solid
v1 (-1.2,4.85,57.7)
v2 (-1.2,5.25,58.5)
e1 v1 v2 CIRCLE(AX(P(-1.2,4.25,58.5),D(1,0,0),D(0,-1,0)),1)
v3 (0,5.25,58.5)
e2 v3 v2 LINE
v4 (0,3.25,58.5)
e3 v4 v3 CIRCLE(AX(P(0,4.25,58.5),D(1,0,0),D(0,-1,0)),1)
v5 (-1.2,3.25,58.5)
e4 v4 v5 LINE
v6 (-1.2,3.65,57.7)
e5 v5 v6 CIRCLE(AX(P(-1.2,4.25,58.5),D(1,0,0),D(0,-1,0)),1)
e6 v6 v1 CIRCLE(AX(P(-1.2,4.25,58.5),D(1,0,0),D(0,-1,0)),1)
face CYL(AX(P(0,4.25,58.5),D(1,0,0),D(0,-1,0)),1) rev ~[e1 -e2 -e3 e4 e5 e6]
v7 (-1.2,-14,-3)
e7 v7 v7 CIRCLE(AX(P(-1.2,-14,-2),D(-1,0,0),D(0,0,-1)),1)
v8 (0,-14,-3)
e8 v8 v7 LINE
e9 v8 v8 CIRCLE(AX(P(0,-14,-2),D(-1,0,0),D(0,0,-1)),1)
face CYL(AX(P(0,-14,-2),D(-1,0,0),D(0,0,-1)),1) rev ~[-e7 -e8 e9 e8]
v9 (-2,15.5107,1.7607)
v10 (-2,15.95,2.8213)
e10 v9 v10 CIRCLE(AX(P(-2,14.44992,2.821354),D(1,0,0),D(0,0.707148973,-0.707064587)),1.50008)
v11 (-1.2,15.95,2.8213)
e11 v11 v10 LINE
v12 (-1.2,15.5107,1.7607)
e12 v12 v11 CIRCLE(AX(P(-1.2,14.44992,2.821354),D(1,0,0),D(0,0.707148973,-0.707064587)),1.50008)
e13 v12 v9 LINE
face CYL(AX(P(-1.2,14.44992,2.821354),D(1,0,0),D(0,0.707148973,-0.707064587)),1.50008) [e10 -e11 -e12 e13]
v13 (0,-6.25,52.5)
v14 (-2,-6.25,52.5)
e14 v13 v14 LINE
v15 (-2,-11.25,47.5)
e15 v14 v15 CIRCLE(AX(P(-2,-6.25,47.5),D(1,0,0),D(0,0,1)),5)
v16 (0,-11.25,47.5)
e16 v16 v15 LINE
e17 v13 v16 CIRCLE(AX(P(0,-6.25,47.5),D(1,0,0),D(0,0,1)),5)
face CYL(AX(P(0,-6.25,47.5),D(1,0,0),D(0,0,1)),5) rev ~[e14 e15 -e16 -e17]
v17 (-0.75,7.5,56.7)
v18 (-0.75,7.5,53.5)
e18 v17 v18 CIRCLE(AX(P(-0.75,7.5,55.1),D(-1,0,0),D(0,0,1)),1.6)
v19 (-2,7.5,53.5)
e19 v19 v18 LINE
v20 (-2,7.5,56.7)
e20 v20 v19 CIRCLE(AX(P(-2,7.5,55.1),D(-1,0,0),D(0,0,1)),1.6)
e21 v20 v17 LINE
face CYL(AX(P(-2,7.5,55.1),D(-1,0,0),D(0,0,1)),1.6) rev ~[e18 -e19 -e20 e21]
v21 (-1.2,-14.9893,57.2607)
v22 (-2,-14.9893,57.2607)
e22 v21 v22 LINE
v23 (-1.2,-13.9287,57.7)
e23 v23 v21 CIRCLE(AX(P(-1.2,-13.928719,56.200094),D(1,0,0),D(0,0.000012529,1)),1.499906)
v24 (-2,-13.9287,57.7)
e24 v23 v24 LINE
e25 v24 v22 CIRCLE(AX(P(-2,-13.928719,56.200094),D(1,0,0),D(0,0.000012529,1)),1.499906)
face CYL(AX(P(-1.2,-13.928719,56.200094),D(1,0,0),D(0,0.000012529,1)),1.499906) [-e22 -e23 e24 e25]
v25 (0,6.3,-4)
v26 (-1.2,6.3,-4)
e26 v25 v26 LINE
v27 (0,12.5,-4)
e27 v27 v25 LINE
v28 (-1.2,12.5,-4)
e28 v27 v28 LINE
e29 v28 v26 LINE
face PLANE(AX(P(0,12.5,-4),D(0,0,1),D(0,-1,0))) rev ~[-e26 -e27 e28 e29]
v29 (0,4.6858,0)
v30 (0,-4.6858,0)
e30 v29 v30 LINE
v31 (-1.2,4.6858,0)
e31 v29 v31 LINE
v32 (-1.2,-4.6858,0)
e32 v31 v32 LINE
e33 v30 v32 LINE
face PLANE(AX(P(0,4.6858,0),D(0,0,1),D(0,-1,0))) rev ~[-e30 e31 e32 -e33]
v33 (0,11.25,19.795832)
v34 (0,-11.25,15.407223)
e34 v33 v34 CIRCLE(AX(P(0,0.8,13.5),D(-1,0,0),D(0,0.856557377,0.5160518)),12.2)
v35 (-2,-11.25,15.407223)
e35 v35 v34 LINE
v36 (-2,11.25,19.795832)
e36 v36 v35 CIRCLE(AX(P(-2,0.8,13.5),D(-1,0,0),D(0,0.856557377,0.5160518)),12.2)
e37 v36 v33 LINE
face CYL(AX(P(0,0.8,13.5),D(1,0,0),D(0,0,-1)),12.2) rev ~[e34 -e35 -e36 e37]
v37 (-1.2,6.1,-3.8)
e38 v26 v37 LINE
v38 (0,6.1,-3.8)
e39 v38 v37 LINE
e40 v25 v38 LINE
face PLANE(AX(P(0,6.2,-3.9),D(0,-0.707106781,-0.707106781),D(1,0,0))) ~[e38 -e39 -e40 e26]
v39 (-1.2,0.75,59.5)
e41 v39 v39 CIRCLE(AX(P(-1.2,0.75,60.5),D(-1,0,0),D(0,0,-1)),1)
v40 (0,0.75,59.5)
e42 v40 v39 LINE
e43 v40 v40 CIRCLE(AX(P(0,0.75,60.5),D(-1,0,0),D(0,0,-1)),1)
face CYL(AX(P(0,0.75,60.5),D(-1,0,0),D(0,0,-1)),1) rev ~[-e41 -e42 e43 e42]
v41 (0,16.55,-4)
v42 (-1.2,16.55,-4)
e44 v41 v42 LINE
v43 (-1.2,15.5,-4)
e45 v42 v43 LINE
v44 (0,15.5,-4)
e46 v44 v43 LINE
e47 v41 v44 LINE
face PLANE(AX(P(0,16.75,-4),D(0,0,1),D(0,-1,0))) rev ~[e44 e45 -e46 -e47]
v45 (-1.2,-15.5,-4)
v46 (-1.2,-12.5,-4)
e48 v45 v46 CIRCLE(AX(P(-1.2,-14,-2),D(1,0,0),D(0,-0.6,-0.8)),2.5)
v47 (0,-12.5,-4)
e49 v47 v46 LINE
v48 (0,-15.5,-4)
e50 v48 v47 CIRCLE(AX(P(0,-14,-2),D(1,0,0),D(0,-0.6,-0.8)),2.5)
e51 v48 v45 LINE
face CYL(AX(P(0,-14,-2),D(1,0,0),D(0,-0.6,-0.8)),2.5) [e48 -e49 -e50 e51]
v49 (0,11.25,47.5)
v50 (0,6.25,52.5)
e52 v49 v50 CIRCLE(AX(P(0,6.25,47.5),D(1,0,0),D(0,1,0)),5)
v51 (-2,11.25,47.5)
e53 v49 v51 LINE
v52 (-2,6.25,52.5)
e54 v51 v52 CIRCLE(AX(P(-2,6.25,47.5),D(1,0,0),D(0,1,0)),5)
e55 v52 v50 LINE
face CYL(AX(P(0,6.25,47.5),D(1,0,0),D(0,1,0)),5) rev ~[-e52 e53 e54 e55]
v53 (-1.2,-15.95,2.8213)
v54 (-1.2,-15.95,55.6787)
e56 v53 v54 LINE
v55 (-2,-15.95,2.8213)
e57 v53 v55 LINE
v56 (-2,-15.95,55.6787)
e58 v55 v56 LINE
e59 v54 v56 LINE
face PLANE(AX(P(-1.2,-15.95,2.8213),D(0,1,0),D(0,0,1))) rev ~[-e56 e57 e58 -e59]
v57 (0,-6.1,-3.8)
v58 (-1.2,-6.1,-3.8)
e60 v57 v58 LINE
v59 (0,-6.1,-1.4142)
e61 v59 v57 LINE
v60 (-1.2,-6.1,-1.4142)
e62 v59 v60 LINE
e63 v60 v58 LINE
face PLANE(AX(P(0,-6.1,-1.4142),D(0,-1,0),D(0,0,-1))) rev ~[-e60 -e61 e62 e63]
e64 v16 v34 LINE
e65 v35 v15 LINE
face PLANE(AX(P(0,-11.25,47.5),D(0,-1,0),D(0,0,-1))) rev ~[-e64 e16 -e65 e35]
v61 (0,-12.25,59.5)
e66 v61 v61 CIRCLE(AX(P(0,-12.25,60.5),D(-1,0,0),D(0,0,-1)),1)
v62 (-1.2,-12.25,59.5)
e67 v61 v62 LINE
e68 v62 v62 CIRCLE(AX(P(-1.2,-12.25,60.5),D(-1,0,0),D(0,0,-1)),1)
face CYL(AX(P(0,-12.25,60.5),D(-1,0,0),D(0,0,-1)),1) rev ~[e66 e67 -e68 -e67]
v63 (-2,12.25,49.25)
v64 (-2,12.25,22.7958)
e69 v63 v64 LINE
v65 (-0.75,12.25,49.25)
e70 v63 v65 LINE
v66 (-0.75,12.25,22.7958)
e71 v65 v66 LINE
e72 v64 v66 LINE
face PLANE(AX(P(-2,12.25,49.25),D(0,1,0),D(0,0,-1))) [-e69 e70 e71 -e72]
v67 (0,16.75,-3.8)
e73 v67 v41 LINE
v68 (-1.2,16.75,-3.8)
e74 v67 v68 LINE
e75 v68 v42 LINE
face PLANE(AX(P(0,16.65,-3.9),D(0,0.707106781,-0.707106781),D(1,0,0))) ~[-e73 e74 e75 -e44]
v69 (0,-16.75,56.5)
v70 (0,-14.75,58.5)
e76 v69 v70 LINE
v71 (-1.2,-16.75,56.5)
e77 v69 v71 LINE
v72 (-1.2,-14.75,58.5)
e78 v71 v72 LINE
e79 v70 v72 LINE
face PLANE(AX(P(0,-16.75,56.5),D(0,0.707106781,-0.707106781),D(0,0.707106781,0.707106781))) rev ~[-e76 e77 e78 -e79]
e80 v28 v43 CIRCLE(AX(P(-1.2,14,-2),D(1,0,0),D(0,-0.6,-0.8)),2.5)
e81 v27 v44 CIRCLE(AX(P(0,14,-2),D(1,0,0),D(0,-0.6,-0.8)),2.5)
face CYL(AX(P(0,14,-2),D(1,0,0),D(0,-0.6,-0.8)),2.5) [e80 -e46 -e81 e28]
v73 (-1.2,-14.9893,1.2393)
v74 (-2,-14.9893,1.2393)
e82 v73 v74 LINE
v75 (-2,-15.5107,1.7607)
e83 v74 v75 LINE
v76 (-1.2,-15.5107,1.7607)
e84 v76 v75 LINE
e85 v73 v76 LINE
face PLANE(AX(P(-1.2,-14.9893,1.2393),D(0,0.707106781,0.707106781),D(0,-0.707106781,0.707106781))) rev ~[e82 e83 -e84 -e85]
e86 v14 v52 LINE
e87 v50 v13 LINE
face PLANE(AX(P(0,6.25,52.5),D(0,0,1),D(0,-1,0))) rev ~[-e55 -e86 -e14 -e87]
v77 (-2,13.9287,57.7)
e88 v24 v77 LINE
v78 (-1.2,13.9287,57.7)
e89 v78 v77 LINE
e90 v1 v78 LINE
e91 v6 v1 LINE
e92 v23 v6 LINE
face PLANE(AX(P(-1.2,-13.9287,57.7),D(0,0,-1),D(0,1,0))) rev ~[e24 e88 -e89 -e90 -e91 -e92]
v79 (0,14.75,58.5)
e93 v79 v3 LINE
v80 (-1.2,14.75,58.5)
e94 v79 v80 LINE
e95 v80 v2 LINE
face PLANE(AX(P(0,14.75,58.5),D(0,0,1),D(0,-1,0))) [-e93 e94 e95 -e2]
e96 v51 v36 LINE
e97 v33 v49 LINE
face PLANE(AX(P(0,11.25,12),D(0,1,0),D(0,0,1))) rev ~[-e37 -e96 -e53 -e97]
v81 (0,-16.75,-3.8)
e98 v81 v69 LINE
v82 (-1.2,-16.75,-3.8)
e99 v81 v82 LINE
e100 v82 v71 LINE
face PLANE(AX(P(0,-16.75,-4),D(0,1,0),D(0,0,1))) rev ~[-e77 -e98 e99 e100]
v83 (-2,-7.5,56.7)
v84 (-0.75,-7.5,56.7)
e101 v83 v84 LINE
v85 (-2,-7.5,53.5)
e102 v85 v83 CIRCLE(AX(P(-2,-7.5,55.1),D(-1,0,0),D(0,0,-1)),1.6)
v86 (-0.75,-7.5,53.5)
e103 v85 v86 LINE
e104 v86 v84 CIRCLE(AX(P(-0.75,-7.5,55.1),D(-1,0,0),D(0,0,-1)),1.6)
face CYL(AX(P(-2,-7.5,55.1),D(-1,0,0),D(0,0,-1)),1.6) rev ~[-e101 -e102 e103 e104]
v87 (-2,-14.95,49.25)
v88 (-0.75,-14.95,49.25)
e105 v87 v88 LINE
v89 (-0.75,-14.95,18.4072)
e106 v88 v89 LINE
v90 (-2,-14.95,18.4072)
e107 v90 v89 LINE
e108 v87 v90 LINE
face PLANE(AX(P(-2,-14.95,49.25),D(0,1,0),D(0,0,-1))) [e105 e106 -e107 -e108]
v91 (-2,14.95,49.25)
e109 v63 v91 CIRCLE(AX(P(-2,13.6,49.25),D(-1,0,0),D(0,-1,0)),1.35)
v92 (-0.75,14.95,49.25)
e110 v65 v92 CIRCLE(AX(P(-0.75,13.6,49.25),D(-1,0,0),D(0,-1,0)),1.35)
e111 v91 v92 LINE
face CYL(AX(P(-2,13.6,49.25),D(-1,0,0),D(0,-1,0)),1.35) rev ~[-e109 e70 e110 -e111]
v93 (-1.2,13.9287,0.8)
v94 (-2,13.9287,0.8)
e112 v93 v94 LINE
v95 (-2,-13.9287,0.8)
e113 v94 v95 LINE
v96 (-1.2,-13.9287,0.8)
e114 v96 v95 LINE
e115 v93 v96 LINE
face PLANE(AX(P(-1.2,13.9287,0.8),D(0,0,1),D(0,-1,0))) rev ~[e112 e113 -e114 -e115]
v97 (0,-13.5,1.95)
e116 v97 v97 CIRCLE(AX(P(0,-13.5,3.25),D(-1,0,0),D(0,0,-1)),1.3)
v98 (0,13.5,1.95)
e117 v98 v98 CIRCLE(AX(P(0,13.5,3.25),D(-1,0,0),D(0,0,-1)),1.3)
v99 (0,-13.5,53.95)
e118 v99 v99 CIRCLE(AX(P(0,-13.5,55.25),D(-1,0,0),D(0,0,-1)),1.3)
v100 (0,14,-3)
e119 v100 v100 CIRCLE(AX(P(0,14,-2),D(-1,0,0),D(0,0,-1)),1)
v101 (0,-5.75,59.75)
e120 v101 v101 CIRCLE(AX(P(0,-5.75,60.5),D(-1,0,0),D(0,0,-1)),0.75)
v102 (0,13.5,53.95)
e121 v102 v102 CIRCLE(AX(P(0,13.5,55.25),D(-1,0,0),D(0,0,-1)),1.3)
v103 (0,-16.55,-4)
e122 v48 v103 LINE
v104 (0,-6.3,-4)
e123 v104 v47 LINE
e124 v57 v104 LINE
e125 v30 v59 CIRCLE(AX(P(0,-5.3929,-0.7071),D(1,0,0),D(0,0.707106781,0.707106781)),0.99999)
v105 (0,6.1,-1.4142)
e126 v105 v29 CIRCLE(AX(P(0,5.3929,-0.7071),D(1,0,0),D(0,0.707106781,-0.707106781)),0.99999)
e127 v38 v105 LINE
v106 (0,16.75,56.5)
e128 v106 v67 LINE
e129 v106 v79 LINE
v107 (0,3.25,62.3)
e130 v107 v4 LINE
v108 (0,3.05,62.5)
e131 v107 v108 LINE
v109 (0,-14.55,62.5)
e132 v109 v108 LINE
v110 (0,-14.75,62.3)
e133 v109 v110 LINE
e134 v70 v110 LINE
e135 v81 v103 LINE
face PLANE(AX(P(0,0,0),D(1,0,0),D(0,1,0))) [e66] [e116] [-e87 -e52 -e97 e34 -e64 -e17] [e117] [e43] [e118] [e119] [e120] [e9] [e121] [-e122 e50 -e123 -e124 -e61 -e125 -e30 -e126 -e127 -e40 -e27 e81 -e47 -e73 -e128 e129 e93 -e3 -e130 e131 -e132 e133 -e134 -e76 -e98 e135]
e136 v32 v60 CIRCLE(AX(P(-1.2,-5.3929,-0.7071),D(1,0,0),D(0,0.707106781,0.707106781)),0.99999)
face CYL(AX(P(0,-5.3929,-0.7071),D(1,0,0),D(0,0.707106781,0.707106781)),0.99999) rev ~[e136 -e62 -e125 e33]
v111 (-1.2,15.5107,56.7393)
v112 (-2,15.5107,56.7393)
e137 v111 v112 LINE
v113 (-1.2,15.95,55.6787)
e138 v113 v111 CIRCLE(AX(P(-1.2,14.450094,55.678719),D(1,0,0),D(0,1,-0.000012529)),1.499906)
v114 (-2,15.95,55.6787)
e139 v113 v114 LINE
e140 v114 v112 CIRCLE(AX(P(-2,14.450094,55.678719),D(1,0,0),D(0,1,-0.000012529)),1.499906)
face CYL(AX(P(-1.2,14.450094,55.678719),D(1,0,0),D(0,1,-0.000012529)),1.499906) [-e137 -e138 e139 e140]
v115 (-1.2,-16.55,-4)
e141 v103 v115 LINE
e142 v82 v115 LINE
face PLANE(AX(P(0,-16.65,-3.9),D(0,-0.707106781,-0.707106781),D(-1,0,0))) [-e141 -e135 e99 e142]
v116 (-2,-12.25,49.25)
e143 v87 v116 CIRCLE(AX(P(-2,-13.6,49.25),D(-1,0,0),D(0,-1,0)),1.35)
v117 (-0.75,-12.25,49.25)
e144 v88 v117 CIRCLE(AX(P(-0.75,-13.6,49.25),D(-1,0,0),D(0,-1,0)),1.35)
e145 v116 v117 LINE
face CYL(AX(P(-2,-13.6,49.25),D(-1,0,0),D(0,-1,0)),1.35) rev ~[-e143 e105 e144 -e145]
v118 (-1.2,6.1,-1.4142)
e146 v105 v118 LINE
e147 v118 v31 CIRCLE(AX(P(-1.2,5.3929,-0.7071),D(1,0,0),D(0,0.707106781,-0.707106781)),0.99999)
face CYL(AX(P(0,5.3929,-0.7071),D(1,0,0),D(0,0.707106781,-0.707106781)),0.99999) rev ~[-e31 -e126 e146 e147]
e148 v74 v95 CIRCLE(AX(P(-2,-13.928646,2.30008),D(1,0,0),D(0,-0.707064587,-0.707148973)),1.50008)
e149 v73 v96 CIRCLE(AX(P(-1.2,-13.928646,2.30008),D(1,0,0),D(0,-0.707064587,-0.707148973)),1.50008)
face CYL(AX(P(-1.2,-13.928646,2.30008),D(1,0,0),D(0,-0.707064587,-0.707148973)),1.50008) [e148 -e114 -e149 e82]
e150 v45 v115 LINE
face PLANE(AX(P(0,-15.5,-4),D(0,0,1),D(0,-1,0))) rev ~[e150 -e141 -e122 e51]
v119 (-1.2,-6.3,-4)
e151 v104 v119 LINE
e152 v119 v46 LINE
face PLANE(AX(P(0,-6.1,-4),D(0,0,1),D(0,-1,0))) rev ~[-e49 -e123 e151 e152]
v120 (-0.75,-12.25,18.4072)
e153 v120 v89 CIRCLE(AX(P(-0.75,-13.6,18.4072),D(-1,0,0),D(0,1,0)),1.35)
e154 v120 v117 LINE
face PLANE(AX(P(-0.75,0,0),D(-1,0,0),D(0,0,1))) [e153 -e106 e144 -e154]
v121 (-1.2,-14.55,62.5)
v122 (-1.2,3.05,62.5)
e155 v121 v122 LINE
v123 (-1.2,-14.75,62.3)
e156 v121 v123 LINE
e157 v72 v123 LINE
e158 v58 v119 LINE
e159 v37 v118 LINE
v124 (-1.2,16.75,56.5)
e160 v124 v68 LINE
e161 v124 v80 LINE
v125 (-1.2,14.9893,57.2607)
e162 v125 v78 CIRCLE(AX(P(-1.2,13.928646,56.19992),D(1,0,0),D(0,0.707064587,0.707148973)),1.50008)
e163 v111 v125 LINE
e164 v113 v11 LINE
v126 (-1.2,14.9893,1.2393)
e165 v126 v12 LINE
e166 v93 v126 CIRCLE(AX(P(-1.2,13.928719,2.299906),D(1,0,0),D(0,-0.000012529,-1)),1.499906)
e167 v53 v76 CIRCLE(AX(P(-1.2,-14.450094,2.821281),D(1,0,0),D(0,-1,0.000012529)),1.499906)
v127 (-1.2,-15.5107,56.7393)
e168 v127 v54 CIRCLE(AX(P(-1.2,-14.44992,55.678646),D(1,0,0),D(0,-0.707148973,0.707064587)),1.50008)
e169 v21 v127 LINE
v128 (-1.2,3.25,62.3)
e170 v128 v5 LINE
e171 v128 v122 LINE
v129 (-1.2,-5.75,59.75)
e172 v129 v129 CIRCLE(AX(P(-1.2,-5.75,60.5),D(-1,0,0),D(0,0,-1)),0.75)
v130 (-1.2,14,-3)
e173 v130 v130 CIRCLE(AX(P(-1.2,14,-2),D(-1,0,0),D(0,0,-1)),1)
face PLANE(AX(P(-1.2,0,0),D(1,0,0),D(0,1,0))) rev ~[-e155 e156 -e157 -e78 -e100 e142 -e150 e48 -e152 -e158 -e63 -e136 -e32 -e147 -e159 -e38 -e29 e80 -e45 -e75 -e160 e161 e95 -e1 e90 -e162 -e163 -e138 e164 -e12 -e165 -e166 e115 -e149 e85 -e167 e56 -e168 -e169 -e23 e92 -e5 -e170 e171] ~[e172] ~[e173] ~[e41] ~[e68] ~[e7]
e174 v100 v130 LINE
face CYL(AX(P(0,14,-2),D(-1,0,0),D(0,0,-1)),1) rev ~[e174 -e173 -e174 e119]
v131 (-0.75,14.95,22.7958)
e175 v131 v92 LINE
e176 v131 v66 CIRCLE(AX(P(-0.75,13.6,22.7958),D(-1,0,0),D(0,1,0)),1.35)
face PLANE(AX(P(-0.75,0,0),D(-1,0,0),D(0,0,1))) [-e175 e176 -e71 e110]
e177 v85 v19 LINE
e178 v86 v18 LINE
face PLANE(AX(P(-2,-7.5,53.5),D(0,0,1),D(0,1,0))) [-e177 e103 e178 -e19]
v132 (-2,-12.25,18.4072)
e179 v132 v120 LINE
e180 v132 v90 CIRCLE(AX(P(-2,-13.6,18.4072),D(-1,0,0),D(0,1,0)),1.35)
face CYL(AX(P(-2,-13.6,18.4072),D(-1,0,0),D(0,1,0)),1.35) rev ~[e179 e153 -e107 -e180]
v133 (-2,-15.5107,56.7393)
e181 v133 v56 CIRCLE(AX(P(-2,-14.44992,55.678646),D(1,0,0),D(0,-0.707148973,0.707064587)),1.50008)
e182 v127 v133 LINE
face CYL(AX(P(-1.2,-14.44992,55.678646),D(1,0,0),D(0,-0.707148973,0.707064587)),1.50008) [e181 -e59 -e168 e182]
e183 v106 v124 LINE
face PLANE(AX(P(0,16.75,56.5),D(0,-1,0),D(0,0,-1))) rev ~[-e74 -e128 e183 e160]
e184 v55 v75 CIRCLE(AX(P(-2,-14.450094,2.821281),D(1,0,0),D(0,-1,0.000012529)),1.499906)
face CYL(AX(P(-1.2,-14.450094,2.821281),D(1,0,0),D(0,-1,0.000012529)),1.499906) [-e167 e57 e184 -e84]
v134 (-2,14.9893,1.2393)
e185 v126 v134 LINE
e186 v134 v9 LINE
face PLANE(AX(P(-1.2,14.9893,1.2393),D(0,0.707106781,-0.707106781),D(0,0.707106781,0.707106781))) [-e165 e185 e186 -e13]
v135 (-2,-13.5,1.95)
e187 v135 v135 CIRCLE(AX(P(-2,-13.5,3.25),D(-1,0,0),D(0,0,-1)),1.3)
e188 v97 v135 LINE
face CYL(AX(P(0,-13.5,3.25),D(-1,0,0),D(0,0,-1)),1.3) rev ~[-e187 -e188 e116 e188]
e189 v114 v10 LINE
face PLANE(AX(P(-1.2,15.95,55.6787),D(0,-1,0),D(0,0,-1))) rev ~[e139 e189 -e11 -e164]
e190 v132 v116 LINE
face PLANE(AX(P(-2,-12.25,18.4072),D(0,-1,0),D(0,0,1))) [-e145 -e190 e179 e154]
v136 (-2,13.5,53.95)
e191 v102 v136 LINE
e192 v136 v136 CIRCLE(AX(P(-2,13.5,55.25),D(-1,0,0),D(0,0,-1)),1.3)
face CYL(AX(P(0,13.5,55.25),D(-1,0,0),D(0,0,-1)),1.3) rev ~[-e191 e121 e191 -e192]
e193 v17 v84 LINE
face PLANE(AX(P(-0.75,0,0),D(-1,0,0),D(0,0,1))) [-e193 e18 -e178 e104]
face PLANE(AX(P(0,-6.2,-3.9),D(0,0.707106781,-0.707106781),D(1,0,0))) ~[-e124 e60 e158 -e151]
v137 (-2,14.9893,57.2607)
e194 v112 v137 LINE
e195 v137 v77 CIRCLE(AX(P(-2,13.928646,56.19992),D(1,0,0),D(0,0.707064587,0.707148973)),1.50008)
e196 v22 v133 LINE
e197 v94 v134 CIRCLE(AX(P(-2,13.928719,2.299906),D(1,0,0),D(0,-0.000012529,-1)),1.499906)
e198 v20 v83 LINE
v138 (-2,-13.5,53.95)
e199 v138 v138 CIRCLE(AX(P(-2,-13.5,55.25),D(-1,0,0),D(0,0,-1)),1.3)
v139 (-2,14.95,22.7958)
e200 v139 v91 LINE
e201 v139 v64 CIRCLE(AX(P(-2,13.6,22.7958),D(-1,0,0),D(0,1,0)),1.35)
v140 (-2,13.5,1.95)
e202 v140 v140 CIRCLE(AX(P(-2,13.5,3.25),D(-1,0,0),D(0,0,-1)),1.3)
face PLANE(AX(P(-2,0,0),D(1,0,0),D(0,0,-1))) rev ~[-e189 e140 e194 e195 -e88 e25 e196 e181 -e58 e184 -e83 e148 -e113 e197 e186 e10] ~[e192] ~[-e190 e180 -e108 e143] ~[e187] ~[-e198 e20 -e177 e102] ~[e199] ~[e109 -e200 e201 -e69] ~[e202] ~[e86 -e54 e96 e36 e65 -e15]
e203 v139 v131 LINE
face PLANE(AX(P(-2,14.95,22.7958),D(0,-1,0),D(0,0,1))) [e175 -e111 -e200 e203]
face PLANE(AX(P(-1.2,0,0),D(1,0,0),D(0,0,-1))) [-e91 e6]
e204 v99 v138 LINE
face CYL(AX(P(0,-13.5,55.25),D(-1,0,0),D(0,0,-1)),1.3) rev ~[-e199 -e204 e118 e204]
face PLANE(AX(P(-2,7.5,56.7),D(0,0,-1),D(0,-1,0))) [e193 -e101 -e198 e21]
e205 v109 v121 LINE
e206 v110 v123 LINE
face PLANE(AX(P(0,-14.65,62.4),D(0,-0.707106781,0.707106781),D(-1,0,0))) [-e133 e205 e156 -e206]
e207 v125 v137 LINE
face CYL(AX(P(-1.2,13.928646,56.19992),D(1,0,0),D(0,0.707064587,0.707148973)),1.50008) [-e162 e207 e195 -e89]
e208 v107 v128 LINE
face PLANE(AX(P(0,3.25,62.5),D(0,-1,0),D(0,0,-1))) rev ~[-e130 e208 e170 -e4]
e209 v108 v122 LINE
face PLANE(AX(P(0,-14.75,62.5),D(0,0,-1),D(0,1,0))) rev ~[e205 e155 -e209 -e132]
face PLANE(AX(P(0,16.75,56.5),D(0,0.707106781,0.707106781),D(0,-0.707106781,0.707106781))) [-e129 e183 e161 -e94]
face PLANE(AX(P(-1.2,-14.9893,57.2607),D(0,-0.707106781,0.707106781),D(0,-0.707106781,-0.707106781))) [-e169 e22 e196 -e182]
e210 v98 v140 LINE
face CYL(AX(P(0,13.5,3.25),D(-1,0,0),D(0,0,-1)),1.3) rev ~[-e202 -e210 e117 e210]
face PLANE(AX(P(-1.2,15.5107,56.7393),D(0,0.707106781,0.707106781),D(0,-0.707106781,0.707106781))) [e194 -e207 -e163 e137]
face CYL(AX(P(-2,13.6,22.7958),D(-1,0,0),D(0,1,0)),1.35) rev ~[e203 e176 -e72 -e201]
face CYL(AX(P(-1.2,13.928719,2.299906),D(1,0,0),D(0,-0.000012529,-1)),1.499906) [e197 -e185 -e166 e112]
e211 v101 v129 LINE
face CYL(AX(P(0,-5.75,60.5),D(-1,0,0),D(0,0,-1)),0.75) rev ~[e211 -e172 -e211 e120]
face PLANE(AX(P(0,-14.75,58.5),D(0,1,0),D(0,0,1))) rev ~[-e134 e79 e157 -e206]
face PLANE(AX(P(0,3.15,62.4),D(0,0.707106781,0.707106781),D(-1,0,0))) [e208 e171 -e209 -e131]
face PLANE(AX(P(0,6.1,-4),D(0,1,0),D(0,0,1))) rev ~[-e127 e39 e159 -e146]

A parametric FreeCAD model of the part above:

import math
import FreeCAD as App
import Part
import Sketcher
from FreeCAD import Vector
Q = App.Units.Quantity


def edges_at(feature, points):
    """Names of the edges that pass closest to the given points."""
    edges = feature.Shape.Edges
    near = lambda p: min(range(len(edges)), key=lambda i: edges[i].distToShape(Part.Vertex(*p))[0])
    return sorted({f"Edge{near(p) + 1}" for p in points})

doc = App.newDocument("Part")
params = doc.addObject("Spreadsheet::Sheet", "Params")
for row, (alias, value) in enumerate([
    ("sketch1_radius", "1 mm"),
    ("sketch1_radius2", "5 mm"),
    ("sketch1_radius3", "2.5 mm"),
    ("sketch1_width", "18 mm"),
    ("sketch1_height", "4 mm"),
    ("pad1_length", "1.2 mm"),
    ("sketch2_radius", "1.5 mm"),
    ("sketch2_radius2", "5 mm"),
    ("sketch2_width", "12.5 mm"),
    ("sketch2_height", "35.5 mm"),
    ("pad2_length", "0.8 mm"),
    ("sketch3_diameter", "2.6 mm"),
    ("hole_diameter", "2.6 mm"),
    ("sketch4_diameter", "2 mm"),
    ("hole2_diameter", "2 mm"),
    ("sketch5_diameter", "24.4 mm"),
    ("pocket1_length", "10 mm"),
    ("sketch6_diameter", "1.5 mm"),
    ("hole3_diameter", "1.5 mm"),
    ("sketch7_radius", "1.6 mm"),
    ("sketch7_radius2", "1.35 mm"),
    ("sketch7_width", "15 mm"),
    ("pocket2_length", "1.25 mm"),
    ("chamfer_size", "0.2 mm"),
], start=1):
    params.set(f"A{row}", alias)
    params.set(f"B{row}", "=" + value)
    params.setAlias(f"B{row}", alias)

body = doc.addObject("PartDesign::Body", "Body")

# Sketch on YZ plane
sketch1 = body.newObject("Sketcher::SketchObject", "Sketch")
sketch1.AttachmentSupport = (doc.getObject("YZ_Plane"), [""])
sketch1.MapMode = "FlatFace"
sketch1.addGeometry(Part.LineSegment(Vector(16.8, -4, 0), Vector(16.8, 56.5, 0)), False)
sketch1.addGeometry(Part.LineSegment(Vector(16.8, 56.5, 0), Vector(14.8, 58.5, 0)), False)
sketch1.addGeometry(Part.LineSegment(Vector(14.8, 58.5, 0), Vector(5.2, 58.5, 0)), False)
sketch1.addGeometry(Part.ArcOfCircle(Part.Circle(Vector(4.2, 58.5, 0), Vector(0, 0, 1), 1), math.radians(180), math.radians(360)), False)
sketch1.addGeometry(Part.LineSegment(Vector(3.2, 58.5, 0), Vector(3.2, 62.5, 0)), False)
sketch1.addGeometry(Part.LineSegment(Vector(3.2, 62.5, 0), Vector(-14.8, 62.5, 0)), False)
sketch1.addGeometry(Part.LineSegment(Vector(-14.8, 62.5, 0), Vector(-14.8, 58.5, 0)), False)
sketch1.addGeometry(Part.LineSegment(Vector(-14.8, 58.5, 0), Vector(-16.8, 56.5, 0)), False)
sketch1.addGeometry(Part.LineSegment(Vector(-16.8, 56.5, 0), Vector(-16.8, -4, 0)), False)
sketch1.addGeometry(Part.LineSegment(Vector(-16.8, -4, 0), Vector(-15.5, -4, 0)), False)
sketch1.addGeometry(Part.ArcOfCircle(Part.Circle(Vector(-14, -2, 0), Vector(0, 0, 1), 2.5), math.radians(-127), math.radians(-53)), False)
sketch1.addGeometry(Part.LineSegment(Vector(-12.5, -4, 0), Vector(-6.1, -4, 0)), False)
sketch1.addGeometry(Part.LineSegment(Vector(-6.1, -4, 0), Vector(-6.1, -1.4, 0)), False)
sketch1.addGeometry(Part.ArcOfCircle(Part.Circle(Vector(-5.4, -0.7, 0), Vector(0, 0, 1), 1), math.radians(45), math.radians(225)), False)
sketch1.addGeometry(Part.LineSegment(Vector(-4.7, 0, 0), Vector(4.7, 0, 0)), False)
sketch1.addGeometry(Part.ArcOfCircle(Part.Circle(Vector(5.4, -0.7, 0), Vector(0, 0, 1), 1), math.radians(-45), math.radians(135)), False)
sketch1.addGeometry(Part.LineSegment(Vector(6.1, -1.4, 0), Vector(6.1, -4, 0)), False)
sketch1.addGeometry(Part.LineSegment(Vector(6.1, -4, 0), Vector(12.5, -4, 0)), False)
sketch1.addGeometry(Part.ArcOfCircle(Part.Circle(Vector(14, -2, 0), Vector(0, 0, 1), 2.5), math.radians(-127), math.radians(-53)), False)
sketch1.addGeometry(Part.LineSegment(Vector(15.5, -4, 0), Vector(16.8, -4, 0)), False)
sketch1.addGeometry(Part.LineSegment(Vector(-6.2, 52.5, 0), Vector(6.2, 52.5, 0)), False)
sketch1.addGeometry(Part.ArcOfCircle(Part.Circle(Vector(6.2, 47.5, 0), Vector(0, 0, 1), 5), math.radians(0), math.radians(90)), False)
sketch1.addGeometry(Part.LineSegment(Vector(11.2, 47.5, 0), Vector(11.2, 12, 0)), False)
sketch1.addGeometry(Part.LineSegment(Vector(11.2, 12, 0), Vector(-11.2, 12, 0)), False)
sketch1.addGeometry(Part.LineSegment(Vector(-11.2, 12, 0), Vector(-11.2, 47.5, 0)), False)
sketch1.addGeometry(Part.ArcOfCircle(Part.Circle(Vector(-6.2, 47.5, 0), Vector(0, 0, 1), 5), math.radians(90), math.radians(180)), False)
sketch1.addConstraint(Sketcher.Constraint("Coincident", 0, 2, 1, 1))
sketch1.addConstraint(Sketcher.Constraint("Coincident", 1, 2, 2, 1))
sketch1.addConstraint(Sketcher.Constraint("Coincident", 2, 2, 3, 2))
sketch1.addConstraint(Sketcher.Constraint("Tangent", 3, 1, 4, 1))
sketch1.addConstraint(Sketcher.Constraint("Coincident", 4, 2, 5, 1))
sketch1.addConstraint(Sketcher.Constraint("Coincident", 5, 2, 6, 1))
sketch1.addConstraint(Sketcher.Constraint("Coincident", 6, 2, 7, 1))
sketch1.addConstraint(Sketcher.Constraint("Coincident", 7, 2, 8, 1))
sketch1.addConstraint(Sketcher.Constraint("Coincident", 8, 2, 9, 1))
sketch1.addConstraint(Sketcher.Constraint("Coincident", 9, 2, 10, 1))
sketch1.addConstraint(Sketcher.Constraint("Coincident", 10, 2, 11, 1))
sketch1.addConstraint(Sketcher.Constraint("Coincident", 11, 2, 12, 1))
sketch1.addConstraint(Sketcher.Constraint("Coincident", 12, 2, 13, 2))
sketch1.addConstraint(Sketcher.Constraint("Coincident", 13, 1, 14, 1))
sketch1.addConstraint(Sketcher.Constraint("Coincident", 14, 2, 15, 2))
sketch1.addConstraint(Sketcher.Constraint("Coincident", 15, 1, 16, 1))
sketch1.addConstraint(Sketcher.Constraint("Coincident", 16, 2, 17, 1))
sketch1.addConstraint(Sketcher.Constraint("Coincident", 17, 2, 18, 1))
sketch1.addConstraint(Sketcher.Constraint("Coincident", 18, 2, 19, 1))
sketch1.addConstraint(Sketcher.Constraint("Coincident", 19, 2, 0, 1))
sketch1.addConstraint(Sketcher.Constraint("Tangent", 20, 2, 21, 2))
sketch1.addConstraint(Sketcher.Constraint("Tangent", 21, 1, 22, 1))
sketch1.addConstraint(Sketcher.Constraint("Coincident", 22, 2, 23, 1))
sketch1.addConstraint(Sketcher.Constraint("Coincident", 23, 2, 24, 1))
sketch1.addConstraint(Sketcher.Constraint("Tangent", 24, 2, 25, 2))
sketch1.addConstraint(Sketcher.Constraint("Tangent", 25, 1, 20, 1))
sketch1.addConstraint(Sketcher.Constraint("Vertical", 0))
sketch1.addConstraint(Sketcher.Constraint("Horizontal", 2))
sketch1.addConstraint(Sketcher.Constraint("Vertical", 4))
sketch1.addConstraint(Sketcher.Constraint("Horizontal", 5))
sketch1.addConstraint(Sketcher.Constraint("Vertical", 6))
sketch1.addConstraint(Sketcher.Constraint("Vertical", 8))
sketch1.addConstraint(Sketcher.Constraint("Horizontal", 9))
sketch1.addConstraint(Sketcher.Constraint("Horizontal", 11))
sketch1.addConstraint(Sketcher.Constraint("Vertical", 12))
sketch1.addConstraint(Sketcher.Constraint("Horizontal", 14))
sketch1.addConstraint(Sketcher.Constraint("Vertical", 16))
sketch1.addConstraint(Sketcher.Constraint("Horizontal", 17))
sketch1.addConstraint(Sketcher.Constraint("Horizontal", 19))
sketch1.addConstraint(Sketcher.Constraint("Horizontal", 20))
sketch1.addConstraint(Sketcher.Constraint("Vertical", 22))
sketch1.addConstraint(Sketcher.Constraint("Horizontal", 23))
sketch1.addConstraint(Sketcher.Constraint("Vertical", 24))
sketch1.addConstraint(Sketcher.Constraint("Equal", 3, 13))
sketch1.addConstraint(Sketcher.Constraint("Equal", 13, 15))
sketch1.addConstraint(Sketcher.Constraint("Equal", 10, 18))
sketch1.addConstraint(Sketcher.Constraint("Equal", 21, 25))
sketch1.addConstraint(Sketcher.Constraint("Symmetric", 13, 1, 14, 2, -1, 1))
sketch1.addConstraint(Sketcher.Constraint("Symmetric", 10, 3, 18, 3, -2))
sketch1.addConstraint(Sketcher.Constraint("Symmetric", 1, 2, 6, 2, -2))
sketch1.addConstraint(Sketcher.Constraint("Symmetric", 0, 2, 7, 2, -2))
sketch1.addConstraint(Sketcher.Constraint("Symmetric", 11, 2, 16, 2, -2))
sketch1.addConstraint(Sketcher.Constraint("Perpendicular", 1, 7))
sketch1.addConstraint(Sketcher.Constraint("Horizontal", 13, 3, 15, 3))
sketch1.addConstraint(Sketcher.Constraint("Horizontal", 3, 3, 1, 2))
sketch1.addConstraint(Sketcher.Constraint("Horizontal", 9, 2, 10, 2))
sketch1.addConstraint(Sketcher.Constraint("Horizontal", 17, 2, 18, 2))
sketch1.addConstraint(Sketcher.Constraint("Radius", 3, Q("1 mm")))
sketch1.addConstraint(Sketcher.Constraint("Radius", 21, Q("5 mm")))
sketch1.addConstraint(Sketcher.Constraint("Radius", 10, Q("2.5 mm")))
sketch1.addConstraint(Sketcher.Constraint("DistanceX", 5, 2, 5, 1, Q("18 mm")))
sketch1.addConstraint(Sketcher.Constraint("DistanceY", 4, 1, 4, 2, Q("4 mm")))
sketch1.addConstraint(Sketcher.Constraint("DistanceY", 10, 3, -1, 1, Q("2 mm")))
sketch1.addConstraint(Sketcher.Constraint("DistanceY", 8, 2, -1, 1, Q("4 mm")))
sketch1.addConstraint(Sketcher.Constraint("DistanceY", -1, 1, 22, 2, Q("12 mm")))
sketch1.addConstraint(Sketcher.Constraint("DistanceX", 10, 3, 18, 3, Q("28 mm")))
sketch1.addConstraint(Sketcher.Constraint("DistanceX", 3, 3, 21, 3, Q("2 mm")))
sketch1.addConstraint(Sketcher.Constraint("DistanceY", 0, 2, 3, 3, Q("2 mm")))
sketch1.addConstraint(Sketcher.Constraint("DistanceY", 20, 2, 2, 2, Q("6 mm")))
sketch1.addConstraint(Sketcher.Constraint("DistanceY", -1, 1, 3, 3, Q("58.5 mm")))
sketch1.addConstraint(Sketcher.Constraint("DistanceX", 21, 1, 0, 2, Q("5.5 mm")))
sketch1.addConstraint(Sketcher.Constraint("DistanceX", 7, 2, 24, 2, Q("5.5 mm")))
sketch1.addConstraint(Sketcher.Constraint("DistanceX", 11, 1, 11, 2, Q("6.4 mm")))
sketch1.addConstraint(Sketcher.Constraint("DistanceX", 14, 1, 14, 2, Q("9.3716 mm")))
sketch1.addConstraint(Sketcher.Constraint("DistanceX", 13, 3, -1, 1, Q("5.393 mm")))
sketch1.setExpression("Constraints[57]", "Params.sketch1_radius")
sketch1.setExpression("Constraints[58]", "Params.sketch1_radius2")
sketch1.setExpression("Constraints[59]", "Params.sketch1_radius3")
sketch1.setExpression("Constraints[60]", "Params.sketch1_width")
sketch1.setExpression("Constraints[61]", "Params.sketch1_height")
pad1 = body.newObject("PartDesign::Pad", "Pad")
pad1.Profile = sketch1
pad1.setExpression("Length", "Params.pad1_length")
pad1.Reversed = True

# Sketch on YZ plane
sketch2 = body.newObject("Sketcher::SketchObject", "Sketch001")
sketch2.AttachmentSupport = (doc.getObject("YZ_Plane"), [""])
sketch2.MapMode = "FlatFace"
sketch2.AttachmentOffset = App.Placement(Vector(0, 0, -1.2), App.Rotation())
sketch2.addGeometry(Part.LineSegment(Vector(-13.9, 0.8, 0), Vector(13.9, 0.8, 0)), False)
sketch2.addGeometry(Part.ArcOfCircle(Part.Circle(Vector(13.9, 2.3, 0), Vector(0, 0, 1), 1.5), math.radians(-90), math.radians(-45)), False)
sketch2.addGeometry(Part.LineSegment(Vector(15, 1.2, 0), Vector(15.5, 1.8, 0)), False)
sketch2.addGeometry(Part.ArcOfCircle(Part.Circle(Vector(14.4, 2.8, 0), Vector(0, 0, 1), 1.5), math.radians(-45), math.radians(0)), False)
sketch2.addGeometry(Part.LineSegment(Vector(15.9, 2.8, 0), Vector(15.9, 55.7, 0)), False)
sketch2.addGeometry(Part.ArcOfCircle(Part.Circle(Vector(14.4, 55.7, 0), Vector(0, 0, 1), 1.5), math.radians(0), math.radians(45)), False)
sketch2.addGeometry(Part.LineSegment(Vector(15.5, 56.7, 0), Vector(15, 57.3, 0)), False)
sketch2.addGeometry(Part.ArcOfCircle(Part.Circle(Vector(13.9, 56.2, 0), Vector(0, 0, 1), 1.5), math.radians(45), math.radians(90)), False)
sketch2.addGeometry(Part.LineSegment(Vector(13.9, 57.7, 0), Vector(-13.9, 57.7, 0)), False)
sketch2.addGeometry(Part.ArcOfCircle(Part.Circle(Vector(-13.9, 56.2, 0), Vector(0, 0, 1), 1.5), math.radians(90), math.radians(135)), False)
sketch2.addGeometry(Part.LineSegment(Vector(-15, 57.3, 0), Vector(-15.5, 56.7, 0)), False)
sketch2.addGeometry(Part.ArcOfCircle(Part.Circle(Vector(-14.4, 55.7, 0), Vector(0, 0, 1), 1.5), math.radians(135), math.radians(180)), False)
sketch2.addGeometry(Part.LineSegment(Vector(-15.9, 55.7, 0), Vector(-15.9, 2.8, 0)), False)
sketch2.addGeometry(Part.ArcOfCircle(Part.Circle(Vector(-14.4, 2.8, 0), Vector(0, 0, 1), 1.5), math.radians(180), math.radians(225)), False)
sketch2.addGeometry(Part.LineSegment(Vector(-15.5, 1.8, 0), Vector(-15, 1.2, 0)), False)
sketch2.addGeometry(Part.ArcOfCircle(Part.Circle(Vector(-13.9, 2.3, 0), Vector(0, 0, 1), 1.5), math.radians(-135), math.radians(-90)), False)
sketch2.addGeometry(Part.ArcOfCircle(Part.Circle(Vector(-6.2, 47.5, 0), Vector(0, 0, 1), 5), math.radians(90), math.radians(180)), False)
sketch2.addGeometry(Part.LineSegment(Vector(-6.2, 52.5, 0), Vector(6.2, 52.5, 0)), False)
sketch2.addGeometry(Part.ArcOfCircle(Part.Circle(Vector(6.2, 47.5, 0), Vector(0, 0, 1), 5), math.radians(0), math.radians(90)), False)
sketch2.addGeometry(Part.LineSegment(Vector(11.2, 47.5, 0), Vector(11.2, 12, 0)), False)
sketch2.addGeometry(Part.LineSegment(Vector(11.2, 12, 0), Vector(-11.2, 12, 0)), False)
sketch2.addGeometry(Part.LineSegment(Vector(-11.2, 12, 0), Vector(-11.2, 47.5, 0)), False)
sketch2.addConstraint(Sketcher.Constraint("Tangent", 0, 2, 1, 1))
sketch2.addConstraint(Sketcher.Constraint("Tangent", 1, 2, 2, 1))
sketch2.addConstraint(Sketcher.Constraint("Tangent", 2, 2, 3, 1))
sketch2.addConstraint(Sketcher.Constraint("Tangent", 3, 2, 4, 1))
sketch2.addConstraint(Sketcher.Constraint("Tangent", 4, 2, 5, 1))
sketch2.addConstraint(Sketcher.Constraint("Tangent", 5, 2, 6, 1))
sketch2.addConstraint(Sketcher.Constraint("Tangent", 6, 2, 7, 1))
sketch2.addConstraint(Sketcher.Constraint("Tangent", 7, 2, 8, 1))
sketch2.addConstraint(Sketcher.Constraint("Tangent", 8, 2, 9, 1))
sketch2.addConstraint(Sketcher.Constraint("Tangent", 9, 2, 10, 1))
sketch2.addConstraint(Sketcher.Constraint("Tangent", 10, 2, 11, 1))
sketch2.addConstraint(Sketcher.Constraint("Tangent", 11, 2, 12, 1))
sketch2.addConstraint(Sketcher.Constraint("Tangent", 12, 2, 13, 1))
sketch2.addConstraint(Sketcher.Constraint("Tangent", 13, 2, 14, 1))
sketch2.addConstraint(Sketcher.Constraint("Tangent", 14, 2, 15, 1))
sketch2.addConstraint(Sketcher.Constraint("Tangent", 15, 2, 0, 1))
sketch2.addConstraint(Sketcher.Constraint("Tangent", 16, 1, 17, 1))
sketch2.addConstraint(Sketcher.Constraint("Tangent", 17, 2, 18, 2))
sketch2.addConstraint(Sketcher.Constraint("Tangent", 18, 1, 19, 1))
sketch2.addConstraint(Sketcher.Constraint("Coincident", 19, 2, 20, 1))
sketch2.addConstraint(Sketcher.Constraint("Coincident", 20, 2, 21, 1))
sketch2.addConstraint(Sketcher.Constraint("Tangent", 21, 2, 16, 2))
sketch2.addConstraint(Sketcher.Constraint("Horizontal", 0))
sketch2.addConstraint(Sketcher.Constraint("Vertical", 4))
sketch2.addConstraint(Sketcher.Constraint("Horizontal", 8))
sketch2.addConstraint(Sketcher.Constraint("Vertical", 12))
sketch2.addConstraint(Sketcher.Constraint("Horizontal", 17))
sketch2.addConstraint(Sketcher.Constraint("Vertical", 19))
sketch2.addConstraint(Sketcher.Constraint("Horizontal", 20))
sketch2.addConstraint(Sketcher.Constraint("Vertical", 21))
sketch2.addConstraint(Sketcher.Constraint("Equal", 1, 3))
sketch2.addConstraint(Sketcher.Constraint("Equal", 3, 5))
sketch2.addConstraint(Sketcher.Constraint("Equal", 5, 7))
sketch2.addConstraint(Sketcher.Constraint("Equal", 7, 9))
sketch2.addConstraint(Sketcher.Constraint("Equal", 9, 11))
sketch2.addConstraint(Sketcher.Constraint("Equal", 11, 13))
sketch2.addConstraint(Sketcher.Constraint("Equal", 13, 15))
sketch2.addConstraint(Sketcher.Constraint("Equal", 16, 18))
sketch2.addConstraint(Sketcher.Constraint("Symmetric", 5, 3, 11, 3, -2))
sketch2.addConstraint(Sketcher.Constraint("Symmetric", 2, 2, 13, 2, -2))
sketch2.addConstraint(Sketcher.Constraint("Perpendicular", 2, 6))
sketch2.addConstraint(Sketcher.Constraint("Perpendicular", 6, 10))
sketch2.addConstraint(Sketcher.Constraint("Perpendicular", 10, 14))
sketch2.addConstraint(Sketcher.Constraint("Vertical", 1, 3, 7, 3))
sketch2.addConstraint(Sketcher.Constraint("Radius", 1, Q("1.5 mm")))
sketch2.addConstraint(Sketcher.Constraint("Radius", 16, Q("5 mm")))
sketch2.addConstraint(Sketcher.Constraint("DistanceY", -1, 1, 0, 2, Q("0.8 mm")))
sketch2.addConstraint(Sketcher.Constraint("DistanceX", 17, 1, 17, 2, Q("12.5 mm")))
sketch2.addConstraint(Sketcher.Constraint("DistanceY", 19, 2, 19, 1, Q("35.5 mm")))
sketch2.addConstraint(Sketcher.Constraint("DistanceY", -1, 1, 19, 2, Q("12 mm")))
sketch2.addConstraint(Sketcher.Constraint("DistanceY", -1, 1, 7, 3, Q("56.2 mm")))
sketch2.addConstraint(Sketcher.Constraint("DistanceX", 11, 3, 5, 3, Q("28.9 mm")))
sketch2.addConstraint(Sketcher.Constraint("DistanceX", 11, 3, 16, 3, Q("8.2 mm")))
sketch2.addConstraint(Sketcher.Constraint("DistanceX", 0, 1, 0, 2, Q("27.8574 mm")))
sketch2.setExpression("Constraints[44]", "Params.sketch2_radius")
sketch2.setExpression("Constraints[45]", "Params.sketch2_radius2")
sketch2.setExpression("Constraints[47]", "Params.sketch2_width")
sketch2.setExpression("Constraints[48]", "Params.sketch2_height")
pad2 = body.newObject("PartDesign::Pad", "Pad001")
pad2.Profile = sketch2
pad2.setExpression("Length", "Params.pad2_length")
pad2.Reversed = True

# Sketch on YZ plane
sketch3 = body.newObject("Sketcher::SketchObject", "Sketch002")
sketch3.AttachmentSupport = (doc.getObject("YZ_Plane"), [""])
sketch3.MapMode = "FlatFace"
sketch3.addGeometry(Part.Circle(Vector(13.5, 55.2, 0), Vector(0, 0, 1), 1.3), False)
sketch3.addGeometry(Part.Circle(Vector(-13.5, 55.2, 0), Vector(0, 0, 1), 1.3), False)
sketch3.addGeometry(Part.Circle(Vector(-13.5, 3.2, 0), Vector(0, 0, 1), 1.3), False)
sketch3.addGeometry(Part.Circle(Vector(13.5, 3.2, 0), Vector(0, 0, 1), 1.3), False)
sketch3.addConstraint(Sketcher.Constraint("Equal", 0, 1))
sketch3.addConstraint(Sketcher.Constraint("Equal", 1, 2))
sketch3.addConstraint(Sketcher.Constraint("Equal", 2, 3))
sketch3.addConstraint(Sketcher.Constraint("Symmetric", 0, 3, 1, 3, -2))
sketch3.addConstraint(Sketcher.Constraint("Symmetric", 2, 3, 3, 3, -2))
sketch3.addConstraint(Sketcher.Constraint("Vertical", 1, 3, 2, 3))
sketch3.addConstraint(Sketcher.Constraint("Diameter", 0, Q("2.6 mm")))
sketch3.addConstraint(Sketcher.Constraint("DistanceX", 1, 3, 0, 3, Q("27 mm")))
sketch3.addConstraint(Sketcher.Constraint("DistanceY", 2, 3, 1, 3, Q("52 mm")))
sketch3.addConstraint(Sketcher.Constraint("DistanceY", -1, 1, 0, 3, Q("55.25 mm")))
sketch3.setExpression("Constraints[6]", "Params.sketch3_diameter")
doc.recompute()
hole = body.newObject("PartDesign::Hole", "Hole")
hole.Profile = sketch3
hole.ThreadType = "None"
hole.setExpression("Diameter", "Params.hole_diameter")
hole.DepthType = "ThroughAll"

# Sketch on YZ plane
sketch4 = body.newObject("Sketcher::SketchObject", "Sketch003")
sketch4.AttachmentSupport = (doc.getObject("YZ_Plane"), [""])
sketch4.MapMode = "FlatFace"
sketch4.addGeometry(Part.Circle(Vector(14, -2, 0), Vector(0, 0, 1), 1), False)
sketch4.addGeometry(Part.Circle(Vector(-14, -2, 0), Vector(0, 0, 1), 1), False)
sketch4.addGeometry(Part.Circle(Vector(-12.2, 60.5, 0), Vector(0, 0, 1), 1), False)
sketch4.addGeometry(Part.Circle(Vector(0.8, 60.5, 0), Vector(0, 0, 1), 1), False)
sketch4.addConstraint(Sketcher.Constraint("Equal", 0, 1))
sketch4.addConstraint(Sketcher.Constraint("Equal", 1, 2))
sketch4.addConstraint(Sketcher.Constraint("Equal", 2, 3))
sketch4.addConstraint(Sketcher.Constraint("Symmetric", 0, 3, 1, 3, -2))
sketch4.addConstraint(Sketcher.Constraint("Horizontal", 2, 3, 3, 3))
sketch4.addConstraint(Sketcher.Constraint("Diameter", 0, Q("2 mm")))
sketch4.addConstraint(Sketcher.Constraint("DistanceX", -1, 1, 0, 3, Q("14 mm")))
sketch4.addConstraint(Sketcher.Constraint("DistanceY", 0, 3, -1, 1, Q("2 mm")))
sketch4.addConstraint(Sketcher.Constraint("DistanceX", 2, 3, 3, 3, Q("13 mm")))
sketch4.addConstraint(Sketcher.Constraint("DistanceY", -1, 1, 2, 3, Q("60.5 mm")))
sketch4.addConstraint(Sketcher.Constraint("DistanceX", 2, 3, -1, 1, Q("12.25 mm")))
sketch4.setExpression("Constraints[5]", "Params.sketch4_diameter")
doc.recompute()
hole2 = body.newObject("PartDesign::Hole", "Hole001")
hole2.Profile = sketch4
hole2.ThreadType = "None"
hole2.setExpression("Diameter", "Params.hole2_diameter")
hole2.DepthType = "ThroughAll"

# Sketch on YZ plane
sketch5 = body.newObject("Sketcher::SketchObject", "Sketch004")
sketch5.AttachmentSupport = (doc.getObject("YZ_Plane"), [""])
sketch5.MapMode = "FlatFace"
sketch5.addGeometry(Part.Circle(Vector(1, 14, 0), Vector(0, 0, 1), 12), False)
sketch5.addConstraint(Sketcher.Constraint("Diameter", 0, Q("24.4 mm")))
sketch5.addConstraint(Sketcher.Constraint("DistanceY", -1, 1, 0, 3, Q("13.5 mm")))
sketch5.addConstraint(Sketcher.Constraint("DistanceX", -1, 1, 0, 3, Q("0.8 mm")))
sketch5.setExpression("Constraints[0]", "Params.sketch5_diameter")
pocket1 = body.newObject("PartDesign::Pocket", "Pocket")
pocket1.Profile = sketch5
pocket1.setExpression("Length", "Params.pocket1_length")

# Sketch on YZ plane
sketch6 = body.newObject("Sketcher::SketchObject", "Sketch005")
sketch6.AttachmentSupport = (doc.getObject("YZ_Plane"), [""])
sketch6.MapMode = "FlatFace"
sketch6.addGeometry(Part.Circle(Vector(-5.8, 60.5, 0), Vector(0, 0, 1), 0.8), False)
sketch6.addConstraint(Sketcher.Constraint("Diameter", 0, Q("1.5 mm")))
sketch6.addConstraint(Sketcher.Constraint("DistanceY", -1, 1, 0, 3, Q("60.5 mm")))
sketch6.addConstraint(Sketcher.Constraint("DistanceX", 0, 3, -1, 1, Q("5.75 mm")))
sketch6.setExpression("Constraints[0]", "Params.sketch6_diameter")
doc.recompute()
hole3 = body.newObject("PartDesign::Hole", "Hole002")
hole3.Profile = sketch6
hole3.ThreadType = "None"
hole3.setExpression("Diameter", "Params.hole3_diameter")
hole3.DepthType = "ThroughAll"

# Sketch on YZ plane
sketch7 = body.newObject("Sketcher::SketchObject", "Sketch006")
sketch7.AttachmentSupport = (doc.getObject("YZ_Plane"), [""])
sketch7.MapMode = "FlatFace"
sketch7.AttachmentOffset = App.Placement(Vector(0, 0, -2), App.Rotation())
sketch7.addGeometry(Part.LineSegment(Vector(14.9, 49.2, 0), Vector(14.9, 22.8, 0)), False)
sketch7.addGeometry(Part.ArcOfCircle(Part.Circle(Vector(13.6, 22.8, 0), Vector(0, 0, 1), 1.3), math.radians(180), math.radians(360)), False)
sketch7.addGeometry(Part.LineSegment(Vector(12.2, 22.8, 0), Vector(12.2, 49.2, 0)), False)
sketch7.addGeometry(Part.ArcOfCircle(Part.Circle(Vector(13.6, 49.2, 0), Vector(0, 0, 1), 1.3), math.radians(0), math.radians(180)), False)
sketch7.addGeometry(Part.LineSegment(Vector(-7.5, 56.7, 0), Vector(7.5, 56.7, 0)), False)
sketch7.addGeometry(Part.ArcOfCircle(Part.Circle(Vector(7.5, 55.1, 0), Vector(0, 0, 1), 1.6), math.radians(-90), math.radians(90)), False)
sketch7.addGeometry(Part.LineSegment(Vector(7.5, 53.5, 0), Vector(-7.5, 53.5, 0)), False)
sketch7.addGeometry(Part.ArcOfCircle(Part.Circle(Vector(-7.5, 55.1, 0), Vector(0, 0, 1), 1.6), math.radians(90), math.radians(270)), False)
sketch7.addGeometry(Part.LineSegment(Vector(-12.2, 49.2, 0), Vector(-12.2, 18.4, 0)), False)
sketch7.addGeometry(Part.ArcOfCircle(Part.Circle(Vector(-13.6, 18.4, 0), Vector(0, 0, 1), 1.3), math.radians(180), math.radians(360)), False)
sketch7.addGeometry(Part.LineSegment(Vector(-14.9, 18.4, 0), Vector(-14.9, 49.2, 0)), False)
sketch7.addGeometry(Part.ArcOfCircle(Part.Circle(Vector(-13.6, 49.2, 0), Vector(0, 0, 1), 1.3), math.radians(0), math.radians(180)), False)
sketch7.addConstraint(Sketcher.Constraint("Tangent", 0, 2, 1, 2))
sketch7.addConstraint(Sketcher.Constraint("Tangent", 1, 1, 2, 1))
sketch7.addConstraint(Sketcher.Constraint("Tangent", 2, 2, 3, 2))
sketch7.addConstraint(Sketcher.Constraint("Tangent", 3, 1, 0, 1))
sketch7.addConstraint(Sketcher.Constraint("Tangent", 4, 2, 5, 2))
sketch7.addConstraint(Sketcher.Constraint("Tangent", 5, 1, 6, 1))
sketch7.addConstraint(Sketcher.Constraint("Tangent", 6, 2, 7, 2))
sketch7.addConstraint(Sketcher.Constraint("Tangent", 7, 1, 4, 1))
sketch7.addConstraint(Sketcher.Constraint("Tangent", 8, 2, 9, 2))
sketch7.addConstraint(Sketcher.Constraint("Tangent", 9, 1, 10, 1))
sketch7.addConstraint(Sketcher.Constraint("Tangent", 10, 2, 11, 2))
sketch7.addConstraint(Sketcher.Constraint("Tangent", 11, 1, 8, 1))
sketch7.addConstraint(Sketcher.Constraint("Vertical", 0))
sketch7.addConstraint(Sketcher.Constraint("Vertical", 2))
sketch7.addConstraint(Sketcher.Constraint("Horizontal", 4))
sketch7.addConstraint(Sketcher.Constraint("Horizontal", 6))
sketch7.addConstraint(Sketcher.Constraint("Vertical", 8))
sketch7.addConstraint(Sketcher.Constraint("Vertical", 10))
sketch7.addConstraint(Sketcher.Constraint("Equal", 3, 9))
sketch7.addConstraint(Sketcher.Constraint("Symmetric", 3, 3, 11, 3, -2))
sketch7.addConstraint(Sketcher.Constraint("Radius", 5, Q("1.6 mm")))
sketch7.addConstraint(Sketcher.Constraint("Radius", 1, Q("1.35 mm")))
sketch7.addConstraint(Sketcher.Constraint("DistanceX", 4, 1, 4, 2, Q("15 mm")))
sketch7.addConstraint(Sketcher.Constraint("DistanceX", -1, 1, 1, 3, Q("13.6 mm")))
sketch7.addConstraint(Sketcher.Constraint("DistanceX", -1, 1, 5, 3, Q("7.5 mm")))
sketch7.addConstraint(Sketcher.Constraint("DistanceY", -1, 1, 5, 3, Q("55.1 mm")))
sketch7.addConstraint(Sketcher.Constraint("DistanceY", -1, 1, 3, 3, Q("49.25 mm")))
sketch7.addConstraint(Sketcher.Constraint("DistanceY", 0, 2, 0, 1, Q("26.4542 mm")))
sketch7.addConstraint(Sketcher.Constraint("DistanceY", 8, 2, 8, 1, Q("30.8428 mm")))
sketch7.setExpression("Constraints[20]", "Params.sketch7_radius")
sketch7.setExpression("Constraints[21]", "Params.sketch7_radius2")
sketch7.setExpression("Constraints[22]", "Params.sketch7_width")
pocket2 = body.newObject("PartDesign::Pocket", "Pocket001")
pocket2.Profile = sketch7
pocket2.setExpression("Length", "Params.pocket2_length")
pocket2.Reversed = True
doc.recompute()

chamfer = body.newObject("PartDesign::Chamfer", "Chamfer")
chamfer.Base = (pocket2, edges_at(pocket2, [
    (-0.6, 16.75, -4),
    (-0.6, -16.75, -4),
    (-0.6, -6.1, -4),
    (-0.6, 6.1, -4),
    (-0.6, 3.25, 62.5),
    (-0.6, -14.75, 62.5),
]))
chamfer.setExpression("Size", "Params.chamfer_size")

doc.recompute()
